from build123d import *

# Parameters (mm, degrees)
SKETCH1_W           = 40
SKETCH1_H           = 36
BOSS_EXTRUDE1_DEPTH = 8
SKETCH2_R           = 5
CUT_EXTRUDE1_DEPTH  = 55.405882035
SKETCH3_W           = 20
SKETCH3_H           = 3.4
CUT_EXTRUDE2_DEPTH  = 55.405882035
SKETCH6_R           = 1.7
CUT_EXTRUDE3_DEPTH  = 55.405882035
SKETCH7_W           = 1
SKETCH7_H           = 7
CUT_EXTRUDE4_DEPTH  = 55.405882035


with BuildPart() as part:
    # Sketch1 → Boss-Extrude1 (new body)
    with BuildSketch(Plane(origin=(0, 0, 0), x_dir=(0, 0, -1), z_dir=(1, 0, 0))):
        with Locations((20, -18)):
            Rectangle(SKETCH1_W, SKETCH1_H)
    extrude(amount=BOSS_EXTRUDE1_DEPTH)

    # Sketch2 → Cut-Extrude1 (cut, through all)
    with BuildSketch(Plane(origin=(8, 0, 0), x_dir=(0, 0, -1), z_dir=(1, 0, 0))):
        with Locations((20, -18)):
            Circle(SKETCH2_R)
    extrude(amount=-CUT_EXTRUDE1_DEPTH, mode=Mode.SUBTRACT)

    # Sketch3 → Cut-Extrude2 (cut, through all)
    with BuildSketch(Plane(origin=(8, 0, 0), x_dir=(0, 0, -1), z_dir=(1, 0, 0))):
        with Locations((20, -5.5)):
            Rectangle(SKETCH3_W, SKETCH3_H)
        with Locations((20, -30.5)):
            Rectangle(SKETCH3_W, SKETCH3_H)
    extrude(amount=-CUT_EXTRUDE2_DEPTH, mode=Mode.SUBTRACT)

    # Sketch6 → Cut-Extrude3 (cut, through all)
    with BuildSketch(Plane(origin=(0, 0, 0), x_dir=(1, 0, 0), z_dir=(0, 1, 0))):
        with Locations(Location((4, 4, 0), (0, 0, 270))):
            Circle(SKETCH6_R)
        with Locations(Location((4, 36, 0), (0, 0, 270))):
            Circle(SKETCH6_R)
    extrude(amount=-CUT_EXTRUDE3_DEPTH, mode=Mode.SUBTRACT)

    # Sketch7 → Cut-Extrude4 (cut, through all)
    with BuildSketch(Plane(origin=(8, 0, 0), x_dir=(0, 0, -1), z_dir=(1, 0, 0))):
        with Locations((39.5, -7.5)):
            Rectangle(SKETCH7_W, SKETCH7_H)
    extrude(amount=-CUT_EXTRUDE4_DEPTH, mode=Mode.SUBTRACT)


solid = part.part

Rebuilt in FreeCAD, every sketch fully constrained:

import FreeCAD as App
import Part
import Sketcher
Q = App.Units.Quantity


def add_polygon(sketch, points):
    """Adds a closed chain of lines whose ends are joined by coincident constraints."""
    first, n = sketch.GeometryCount, len(points)
    for a, b in zip(points, points[1:] + points[:1]):
        sketch.addGeometry(Part.LineSegment(App.Vector(*a, 0), App.Vector(*b, 0)), False)
    for i in range(n):
        sketch.addConstraint(Sketcher.Constraint("Coincident", first + i, 2, first + (i + 1) % n, 1))

doc = App.newDocument("Part")
body = doc.addObject("PartDesign::Body", "Body")

# Sketch on YZ plane
sketch1 = doc.addObject("Sketcher::SketchObject", "Sketch")
body.addObject(sketch1)
sketch1.AttachmentSupport = (doc.YZ_Plane, [""])
sketch1.MapMode = "FlatFace"
add_polygon(sketch1, [(0, 0), (-36, 0), (-36, -40), (0, -40)])  # lines 0-3
sketch1.addConstraint(Sketcher.Constraint("Horizontal", 0))
sketch1.addConstraint(Sketcher.Constraint("Vertical", 1))
sketch1.addConstraint(Sketcher.Constraint("Horizontal", 2))
sketch1.addConstraint(Sketcher.Constraint("Vertical", 3))
sketch1.addConstraint(Sketcher.Constraint("Coincident", 3, 2, -1, 1))
sketch1.addConstraint(Sketcher.Constraint("DistanceX", 0, 2, 0, 1, Q("36 mm")))
sketch1.addConstraint(Sketcher.Constraint("DistanceY", 1, 2, 1, 1, Q("40 mm")))
pad1 = doc.addObject("PartDesign::Pad", "Pad")
body.addObject(pad1)
pad1.Profile = sketch1
pad1.Length = 8

# Sketch on YZ plane
sketch2 = doc.addObject("Sketcher::SketchObject", "Sketch001")
body.addObject(sketch2)
sketch2.AttachmentSupport = (doc.YZ_Plane, [""])
sketch2.MapMode = "FlatFace"
sketch2.AttachmentOffset = App.Placement(App.Vector(0, 0, 8), App.Rotation())
sketch2.addGeometry(Part.Circle(App.Vector(-18, -20, 0), App.Vector(0, 0, 1), 5), False)
sketch2.addConstraint(Sketcher.Constraint("Diameter", 0, Q("10 mm")))
sketch2.addConstraint(Sketcher.Constraint("DistanceX", 0, 3, -1, 1, Q("18 mm")))
sketch2.addConstraint(Sketcher.Constraint("DistanceY", 0, 3, -1, 1, Q("20 mm")))
pocket1 = doc.addObject("PartDesign::Pocket", "Pocket")
body.addObject(pocket1)
pocket1.Profile = sketch2
pocket1.Type = "ThroughAll"

# Sketch on YZ plane
sketch3 = doc.addObject("Sketcher::SketchObject", "Sketch002")
body.addObject(sketch3)
sketch3.AttachmentSupport = (doc.YZ_Plane, [""])
sketch3.MapMode = "FlatFace"
sketch3.AttachmentOffset = App.Placement(App.Vector(0, 0, 8), App.Rotation())
add_polygon(sketch3, [(-3.8, -10), (-7.2, -10), (-7.2, -30), (-3.8, -30)])  # lines 0-3
add_polygon(sketch3, [(-28.8, -10), (-32.2, -10), (-32.2, -30), (-28.8, -30)])  # lines 4-7
sketch3.addConstraint(Sketcher.Constraint("Horizontal", 0))
sketch3.addConstraint(Sketcher.Constraint("Vertical", 1))
sketch3.addConstraint(Sketcher.Constraint("Horizontal", 2))
sketch3.addConstraint(Sketcher.Constraint("Vertical", 3))
sketch3.addConstraint(Sketcher.Constraint("Horizontal", 4))
sketch3.addConstraint(Sketcher.Constraint("Vertical", 5))
sketch3.addConstraint(Sketcher.Constraint("Horizontal", 6))
sketch3.addConstraint(Sketcher.Constraint("Vertical", 7))
sketch3.addConstraint(Sketcher.Constraint("Horizontal", 3, 2, 4, 2))
sketch3.addConstraint(Sketcher.Constraint("Horizontal", 2, 2, 5, 2))
sketch3.addConstraint(Sketcher.Constraint("Equal", 2, 4))
sketch3.addConstraint(Sketcher.Constraint("DistanceY", 1, 2, 1, 1, Q("20 mm")))
sketch3.addConstraint(Sketcher.Constraint("DistanceX", 0, 2, 0, 1, Q("3.4 mm")))
sketch3.addConstraint(Sketcher.Constraint("DistanceY", 0, 2, -1, 1, Q("10 mm")))
sketch3.addConstraint(Sketcher.Constraint("DistanceX", 4, 2, 0, 2, Q("25 mm")))
sketch3.addConstraint(Sketcher.Constraint("DistanceX", 0, 2, -1, 1, Q("7.2 mm")))
pocket2 = doc.addObject("PartDesign::Pocket", "Pocket001")
body.addObject(pocket2)
pocket2.Profile = sketch3
pocket2.Type = "ThroughAll"

# Sketch on XZ plane
sketch4 = doc.addObject("Sketcher::SketchObject", "Sketch003")
body.addObject(sketch4)
sketch4.AttachmentSupport = (doc.XZ_Plane, [""])
sketch4.MapMode = "FlatFace"
sketch4.addGeometry(Part.Circle(App.Vector(4, -4, 0), App.Vector(0, 0, 1), 1.7), False)
sketch4.addGeometry(Part.Circle(App.Vector(4, -36, 0), App.Vector(0, 0, 1), 1.7), False)
sketch4.addConstraint(Sketcher.Constraint("Equal", 0, 1))
sketch4.addConstraint(Sketcher.Constraint("Vertical", 0, 3, 1, 3))
sketch4.addConstraint(Sketcher.Constraint("Diameter", 0, Q("3.4 mm")))
sketch4.addConstraint(Sketcher.Constraint("DistanceX", -1, 1, 0, 3, Q("4 mm")))
sketch4.addConstraint(Sketcher.Constraint("DistanceY", 0, 3, -1, 1, Q("4 mm")))
sketch4.addConstraint(Sketcher.Constraint("DistanceY", 1, 3, -1, 1, Q("36 mm")))
pocket3 = doc.addObject("PartDesign::Pocket", "Pocket002")
body.addObject(pocket3)
pocket3.Profile = sketch4
pocket3.Type = "ThroughAll"
pocket3.Reversed = True

# Sketch on YZ plane
sketch5 = doc.addObject("Sketcher::SketchObject", "Sketch004")
body.addObject(sketch5)
sketch5.AttachmentSupport = (doc.YZ_Plane, [""])
sketch5.MapMode = "FlatFace"
sketch5.AttachmentOffset = App.Placement(App.Vector(0, 0, 8), App.Rotation())
add_polygon(sketch5, [(-4, -39), (-11, -39), (-11, -40), (-4, -40)])  # lines 0-3
sketch5.addConstraint(Sketcher.Constraint("Horizontal", 0))
sketch5.addConstraint(Sketcher.Constraint("Vertical", 1))
sketch5.addConstraint(Sketcher.Constraint("Horizontal", 2))
sketch5.addConstraint(Sketcher.Constraint("Vertical", 3))
sketch5.addConstraint(Sketcher.Constraint("DistanceX", 0, 2, 0, 1, Q("7 mm")))
sketch5.addConstraint(Sketcher.Constraint("DistanceY", 1, 2, 1, 1, Q("1 mm")))
sketch5.addConstraint(Sketcher.Constraint("DistanceX", 0, 2, -1, 1, Q("11 mm")))
sketch5.addConstraint(Sketcher.Constraint("DistanceY", 0, 2, -1, 1, Q("39 mm")))
pocket4 = doc.addObject("PartDesign::Pocket", "Pocket003")
body.addObject(pocket4)
pocket4.Profile = sketch5
pocket4.Type = "ThroughAll"

doc.recompute()
